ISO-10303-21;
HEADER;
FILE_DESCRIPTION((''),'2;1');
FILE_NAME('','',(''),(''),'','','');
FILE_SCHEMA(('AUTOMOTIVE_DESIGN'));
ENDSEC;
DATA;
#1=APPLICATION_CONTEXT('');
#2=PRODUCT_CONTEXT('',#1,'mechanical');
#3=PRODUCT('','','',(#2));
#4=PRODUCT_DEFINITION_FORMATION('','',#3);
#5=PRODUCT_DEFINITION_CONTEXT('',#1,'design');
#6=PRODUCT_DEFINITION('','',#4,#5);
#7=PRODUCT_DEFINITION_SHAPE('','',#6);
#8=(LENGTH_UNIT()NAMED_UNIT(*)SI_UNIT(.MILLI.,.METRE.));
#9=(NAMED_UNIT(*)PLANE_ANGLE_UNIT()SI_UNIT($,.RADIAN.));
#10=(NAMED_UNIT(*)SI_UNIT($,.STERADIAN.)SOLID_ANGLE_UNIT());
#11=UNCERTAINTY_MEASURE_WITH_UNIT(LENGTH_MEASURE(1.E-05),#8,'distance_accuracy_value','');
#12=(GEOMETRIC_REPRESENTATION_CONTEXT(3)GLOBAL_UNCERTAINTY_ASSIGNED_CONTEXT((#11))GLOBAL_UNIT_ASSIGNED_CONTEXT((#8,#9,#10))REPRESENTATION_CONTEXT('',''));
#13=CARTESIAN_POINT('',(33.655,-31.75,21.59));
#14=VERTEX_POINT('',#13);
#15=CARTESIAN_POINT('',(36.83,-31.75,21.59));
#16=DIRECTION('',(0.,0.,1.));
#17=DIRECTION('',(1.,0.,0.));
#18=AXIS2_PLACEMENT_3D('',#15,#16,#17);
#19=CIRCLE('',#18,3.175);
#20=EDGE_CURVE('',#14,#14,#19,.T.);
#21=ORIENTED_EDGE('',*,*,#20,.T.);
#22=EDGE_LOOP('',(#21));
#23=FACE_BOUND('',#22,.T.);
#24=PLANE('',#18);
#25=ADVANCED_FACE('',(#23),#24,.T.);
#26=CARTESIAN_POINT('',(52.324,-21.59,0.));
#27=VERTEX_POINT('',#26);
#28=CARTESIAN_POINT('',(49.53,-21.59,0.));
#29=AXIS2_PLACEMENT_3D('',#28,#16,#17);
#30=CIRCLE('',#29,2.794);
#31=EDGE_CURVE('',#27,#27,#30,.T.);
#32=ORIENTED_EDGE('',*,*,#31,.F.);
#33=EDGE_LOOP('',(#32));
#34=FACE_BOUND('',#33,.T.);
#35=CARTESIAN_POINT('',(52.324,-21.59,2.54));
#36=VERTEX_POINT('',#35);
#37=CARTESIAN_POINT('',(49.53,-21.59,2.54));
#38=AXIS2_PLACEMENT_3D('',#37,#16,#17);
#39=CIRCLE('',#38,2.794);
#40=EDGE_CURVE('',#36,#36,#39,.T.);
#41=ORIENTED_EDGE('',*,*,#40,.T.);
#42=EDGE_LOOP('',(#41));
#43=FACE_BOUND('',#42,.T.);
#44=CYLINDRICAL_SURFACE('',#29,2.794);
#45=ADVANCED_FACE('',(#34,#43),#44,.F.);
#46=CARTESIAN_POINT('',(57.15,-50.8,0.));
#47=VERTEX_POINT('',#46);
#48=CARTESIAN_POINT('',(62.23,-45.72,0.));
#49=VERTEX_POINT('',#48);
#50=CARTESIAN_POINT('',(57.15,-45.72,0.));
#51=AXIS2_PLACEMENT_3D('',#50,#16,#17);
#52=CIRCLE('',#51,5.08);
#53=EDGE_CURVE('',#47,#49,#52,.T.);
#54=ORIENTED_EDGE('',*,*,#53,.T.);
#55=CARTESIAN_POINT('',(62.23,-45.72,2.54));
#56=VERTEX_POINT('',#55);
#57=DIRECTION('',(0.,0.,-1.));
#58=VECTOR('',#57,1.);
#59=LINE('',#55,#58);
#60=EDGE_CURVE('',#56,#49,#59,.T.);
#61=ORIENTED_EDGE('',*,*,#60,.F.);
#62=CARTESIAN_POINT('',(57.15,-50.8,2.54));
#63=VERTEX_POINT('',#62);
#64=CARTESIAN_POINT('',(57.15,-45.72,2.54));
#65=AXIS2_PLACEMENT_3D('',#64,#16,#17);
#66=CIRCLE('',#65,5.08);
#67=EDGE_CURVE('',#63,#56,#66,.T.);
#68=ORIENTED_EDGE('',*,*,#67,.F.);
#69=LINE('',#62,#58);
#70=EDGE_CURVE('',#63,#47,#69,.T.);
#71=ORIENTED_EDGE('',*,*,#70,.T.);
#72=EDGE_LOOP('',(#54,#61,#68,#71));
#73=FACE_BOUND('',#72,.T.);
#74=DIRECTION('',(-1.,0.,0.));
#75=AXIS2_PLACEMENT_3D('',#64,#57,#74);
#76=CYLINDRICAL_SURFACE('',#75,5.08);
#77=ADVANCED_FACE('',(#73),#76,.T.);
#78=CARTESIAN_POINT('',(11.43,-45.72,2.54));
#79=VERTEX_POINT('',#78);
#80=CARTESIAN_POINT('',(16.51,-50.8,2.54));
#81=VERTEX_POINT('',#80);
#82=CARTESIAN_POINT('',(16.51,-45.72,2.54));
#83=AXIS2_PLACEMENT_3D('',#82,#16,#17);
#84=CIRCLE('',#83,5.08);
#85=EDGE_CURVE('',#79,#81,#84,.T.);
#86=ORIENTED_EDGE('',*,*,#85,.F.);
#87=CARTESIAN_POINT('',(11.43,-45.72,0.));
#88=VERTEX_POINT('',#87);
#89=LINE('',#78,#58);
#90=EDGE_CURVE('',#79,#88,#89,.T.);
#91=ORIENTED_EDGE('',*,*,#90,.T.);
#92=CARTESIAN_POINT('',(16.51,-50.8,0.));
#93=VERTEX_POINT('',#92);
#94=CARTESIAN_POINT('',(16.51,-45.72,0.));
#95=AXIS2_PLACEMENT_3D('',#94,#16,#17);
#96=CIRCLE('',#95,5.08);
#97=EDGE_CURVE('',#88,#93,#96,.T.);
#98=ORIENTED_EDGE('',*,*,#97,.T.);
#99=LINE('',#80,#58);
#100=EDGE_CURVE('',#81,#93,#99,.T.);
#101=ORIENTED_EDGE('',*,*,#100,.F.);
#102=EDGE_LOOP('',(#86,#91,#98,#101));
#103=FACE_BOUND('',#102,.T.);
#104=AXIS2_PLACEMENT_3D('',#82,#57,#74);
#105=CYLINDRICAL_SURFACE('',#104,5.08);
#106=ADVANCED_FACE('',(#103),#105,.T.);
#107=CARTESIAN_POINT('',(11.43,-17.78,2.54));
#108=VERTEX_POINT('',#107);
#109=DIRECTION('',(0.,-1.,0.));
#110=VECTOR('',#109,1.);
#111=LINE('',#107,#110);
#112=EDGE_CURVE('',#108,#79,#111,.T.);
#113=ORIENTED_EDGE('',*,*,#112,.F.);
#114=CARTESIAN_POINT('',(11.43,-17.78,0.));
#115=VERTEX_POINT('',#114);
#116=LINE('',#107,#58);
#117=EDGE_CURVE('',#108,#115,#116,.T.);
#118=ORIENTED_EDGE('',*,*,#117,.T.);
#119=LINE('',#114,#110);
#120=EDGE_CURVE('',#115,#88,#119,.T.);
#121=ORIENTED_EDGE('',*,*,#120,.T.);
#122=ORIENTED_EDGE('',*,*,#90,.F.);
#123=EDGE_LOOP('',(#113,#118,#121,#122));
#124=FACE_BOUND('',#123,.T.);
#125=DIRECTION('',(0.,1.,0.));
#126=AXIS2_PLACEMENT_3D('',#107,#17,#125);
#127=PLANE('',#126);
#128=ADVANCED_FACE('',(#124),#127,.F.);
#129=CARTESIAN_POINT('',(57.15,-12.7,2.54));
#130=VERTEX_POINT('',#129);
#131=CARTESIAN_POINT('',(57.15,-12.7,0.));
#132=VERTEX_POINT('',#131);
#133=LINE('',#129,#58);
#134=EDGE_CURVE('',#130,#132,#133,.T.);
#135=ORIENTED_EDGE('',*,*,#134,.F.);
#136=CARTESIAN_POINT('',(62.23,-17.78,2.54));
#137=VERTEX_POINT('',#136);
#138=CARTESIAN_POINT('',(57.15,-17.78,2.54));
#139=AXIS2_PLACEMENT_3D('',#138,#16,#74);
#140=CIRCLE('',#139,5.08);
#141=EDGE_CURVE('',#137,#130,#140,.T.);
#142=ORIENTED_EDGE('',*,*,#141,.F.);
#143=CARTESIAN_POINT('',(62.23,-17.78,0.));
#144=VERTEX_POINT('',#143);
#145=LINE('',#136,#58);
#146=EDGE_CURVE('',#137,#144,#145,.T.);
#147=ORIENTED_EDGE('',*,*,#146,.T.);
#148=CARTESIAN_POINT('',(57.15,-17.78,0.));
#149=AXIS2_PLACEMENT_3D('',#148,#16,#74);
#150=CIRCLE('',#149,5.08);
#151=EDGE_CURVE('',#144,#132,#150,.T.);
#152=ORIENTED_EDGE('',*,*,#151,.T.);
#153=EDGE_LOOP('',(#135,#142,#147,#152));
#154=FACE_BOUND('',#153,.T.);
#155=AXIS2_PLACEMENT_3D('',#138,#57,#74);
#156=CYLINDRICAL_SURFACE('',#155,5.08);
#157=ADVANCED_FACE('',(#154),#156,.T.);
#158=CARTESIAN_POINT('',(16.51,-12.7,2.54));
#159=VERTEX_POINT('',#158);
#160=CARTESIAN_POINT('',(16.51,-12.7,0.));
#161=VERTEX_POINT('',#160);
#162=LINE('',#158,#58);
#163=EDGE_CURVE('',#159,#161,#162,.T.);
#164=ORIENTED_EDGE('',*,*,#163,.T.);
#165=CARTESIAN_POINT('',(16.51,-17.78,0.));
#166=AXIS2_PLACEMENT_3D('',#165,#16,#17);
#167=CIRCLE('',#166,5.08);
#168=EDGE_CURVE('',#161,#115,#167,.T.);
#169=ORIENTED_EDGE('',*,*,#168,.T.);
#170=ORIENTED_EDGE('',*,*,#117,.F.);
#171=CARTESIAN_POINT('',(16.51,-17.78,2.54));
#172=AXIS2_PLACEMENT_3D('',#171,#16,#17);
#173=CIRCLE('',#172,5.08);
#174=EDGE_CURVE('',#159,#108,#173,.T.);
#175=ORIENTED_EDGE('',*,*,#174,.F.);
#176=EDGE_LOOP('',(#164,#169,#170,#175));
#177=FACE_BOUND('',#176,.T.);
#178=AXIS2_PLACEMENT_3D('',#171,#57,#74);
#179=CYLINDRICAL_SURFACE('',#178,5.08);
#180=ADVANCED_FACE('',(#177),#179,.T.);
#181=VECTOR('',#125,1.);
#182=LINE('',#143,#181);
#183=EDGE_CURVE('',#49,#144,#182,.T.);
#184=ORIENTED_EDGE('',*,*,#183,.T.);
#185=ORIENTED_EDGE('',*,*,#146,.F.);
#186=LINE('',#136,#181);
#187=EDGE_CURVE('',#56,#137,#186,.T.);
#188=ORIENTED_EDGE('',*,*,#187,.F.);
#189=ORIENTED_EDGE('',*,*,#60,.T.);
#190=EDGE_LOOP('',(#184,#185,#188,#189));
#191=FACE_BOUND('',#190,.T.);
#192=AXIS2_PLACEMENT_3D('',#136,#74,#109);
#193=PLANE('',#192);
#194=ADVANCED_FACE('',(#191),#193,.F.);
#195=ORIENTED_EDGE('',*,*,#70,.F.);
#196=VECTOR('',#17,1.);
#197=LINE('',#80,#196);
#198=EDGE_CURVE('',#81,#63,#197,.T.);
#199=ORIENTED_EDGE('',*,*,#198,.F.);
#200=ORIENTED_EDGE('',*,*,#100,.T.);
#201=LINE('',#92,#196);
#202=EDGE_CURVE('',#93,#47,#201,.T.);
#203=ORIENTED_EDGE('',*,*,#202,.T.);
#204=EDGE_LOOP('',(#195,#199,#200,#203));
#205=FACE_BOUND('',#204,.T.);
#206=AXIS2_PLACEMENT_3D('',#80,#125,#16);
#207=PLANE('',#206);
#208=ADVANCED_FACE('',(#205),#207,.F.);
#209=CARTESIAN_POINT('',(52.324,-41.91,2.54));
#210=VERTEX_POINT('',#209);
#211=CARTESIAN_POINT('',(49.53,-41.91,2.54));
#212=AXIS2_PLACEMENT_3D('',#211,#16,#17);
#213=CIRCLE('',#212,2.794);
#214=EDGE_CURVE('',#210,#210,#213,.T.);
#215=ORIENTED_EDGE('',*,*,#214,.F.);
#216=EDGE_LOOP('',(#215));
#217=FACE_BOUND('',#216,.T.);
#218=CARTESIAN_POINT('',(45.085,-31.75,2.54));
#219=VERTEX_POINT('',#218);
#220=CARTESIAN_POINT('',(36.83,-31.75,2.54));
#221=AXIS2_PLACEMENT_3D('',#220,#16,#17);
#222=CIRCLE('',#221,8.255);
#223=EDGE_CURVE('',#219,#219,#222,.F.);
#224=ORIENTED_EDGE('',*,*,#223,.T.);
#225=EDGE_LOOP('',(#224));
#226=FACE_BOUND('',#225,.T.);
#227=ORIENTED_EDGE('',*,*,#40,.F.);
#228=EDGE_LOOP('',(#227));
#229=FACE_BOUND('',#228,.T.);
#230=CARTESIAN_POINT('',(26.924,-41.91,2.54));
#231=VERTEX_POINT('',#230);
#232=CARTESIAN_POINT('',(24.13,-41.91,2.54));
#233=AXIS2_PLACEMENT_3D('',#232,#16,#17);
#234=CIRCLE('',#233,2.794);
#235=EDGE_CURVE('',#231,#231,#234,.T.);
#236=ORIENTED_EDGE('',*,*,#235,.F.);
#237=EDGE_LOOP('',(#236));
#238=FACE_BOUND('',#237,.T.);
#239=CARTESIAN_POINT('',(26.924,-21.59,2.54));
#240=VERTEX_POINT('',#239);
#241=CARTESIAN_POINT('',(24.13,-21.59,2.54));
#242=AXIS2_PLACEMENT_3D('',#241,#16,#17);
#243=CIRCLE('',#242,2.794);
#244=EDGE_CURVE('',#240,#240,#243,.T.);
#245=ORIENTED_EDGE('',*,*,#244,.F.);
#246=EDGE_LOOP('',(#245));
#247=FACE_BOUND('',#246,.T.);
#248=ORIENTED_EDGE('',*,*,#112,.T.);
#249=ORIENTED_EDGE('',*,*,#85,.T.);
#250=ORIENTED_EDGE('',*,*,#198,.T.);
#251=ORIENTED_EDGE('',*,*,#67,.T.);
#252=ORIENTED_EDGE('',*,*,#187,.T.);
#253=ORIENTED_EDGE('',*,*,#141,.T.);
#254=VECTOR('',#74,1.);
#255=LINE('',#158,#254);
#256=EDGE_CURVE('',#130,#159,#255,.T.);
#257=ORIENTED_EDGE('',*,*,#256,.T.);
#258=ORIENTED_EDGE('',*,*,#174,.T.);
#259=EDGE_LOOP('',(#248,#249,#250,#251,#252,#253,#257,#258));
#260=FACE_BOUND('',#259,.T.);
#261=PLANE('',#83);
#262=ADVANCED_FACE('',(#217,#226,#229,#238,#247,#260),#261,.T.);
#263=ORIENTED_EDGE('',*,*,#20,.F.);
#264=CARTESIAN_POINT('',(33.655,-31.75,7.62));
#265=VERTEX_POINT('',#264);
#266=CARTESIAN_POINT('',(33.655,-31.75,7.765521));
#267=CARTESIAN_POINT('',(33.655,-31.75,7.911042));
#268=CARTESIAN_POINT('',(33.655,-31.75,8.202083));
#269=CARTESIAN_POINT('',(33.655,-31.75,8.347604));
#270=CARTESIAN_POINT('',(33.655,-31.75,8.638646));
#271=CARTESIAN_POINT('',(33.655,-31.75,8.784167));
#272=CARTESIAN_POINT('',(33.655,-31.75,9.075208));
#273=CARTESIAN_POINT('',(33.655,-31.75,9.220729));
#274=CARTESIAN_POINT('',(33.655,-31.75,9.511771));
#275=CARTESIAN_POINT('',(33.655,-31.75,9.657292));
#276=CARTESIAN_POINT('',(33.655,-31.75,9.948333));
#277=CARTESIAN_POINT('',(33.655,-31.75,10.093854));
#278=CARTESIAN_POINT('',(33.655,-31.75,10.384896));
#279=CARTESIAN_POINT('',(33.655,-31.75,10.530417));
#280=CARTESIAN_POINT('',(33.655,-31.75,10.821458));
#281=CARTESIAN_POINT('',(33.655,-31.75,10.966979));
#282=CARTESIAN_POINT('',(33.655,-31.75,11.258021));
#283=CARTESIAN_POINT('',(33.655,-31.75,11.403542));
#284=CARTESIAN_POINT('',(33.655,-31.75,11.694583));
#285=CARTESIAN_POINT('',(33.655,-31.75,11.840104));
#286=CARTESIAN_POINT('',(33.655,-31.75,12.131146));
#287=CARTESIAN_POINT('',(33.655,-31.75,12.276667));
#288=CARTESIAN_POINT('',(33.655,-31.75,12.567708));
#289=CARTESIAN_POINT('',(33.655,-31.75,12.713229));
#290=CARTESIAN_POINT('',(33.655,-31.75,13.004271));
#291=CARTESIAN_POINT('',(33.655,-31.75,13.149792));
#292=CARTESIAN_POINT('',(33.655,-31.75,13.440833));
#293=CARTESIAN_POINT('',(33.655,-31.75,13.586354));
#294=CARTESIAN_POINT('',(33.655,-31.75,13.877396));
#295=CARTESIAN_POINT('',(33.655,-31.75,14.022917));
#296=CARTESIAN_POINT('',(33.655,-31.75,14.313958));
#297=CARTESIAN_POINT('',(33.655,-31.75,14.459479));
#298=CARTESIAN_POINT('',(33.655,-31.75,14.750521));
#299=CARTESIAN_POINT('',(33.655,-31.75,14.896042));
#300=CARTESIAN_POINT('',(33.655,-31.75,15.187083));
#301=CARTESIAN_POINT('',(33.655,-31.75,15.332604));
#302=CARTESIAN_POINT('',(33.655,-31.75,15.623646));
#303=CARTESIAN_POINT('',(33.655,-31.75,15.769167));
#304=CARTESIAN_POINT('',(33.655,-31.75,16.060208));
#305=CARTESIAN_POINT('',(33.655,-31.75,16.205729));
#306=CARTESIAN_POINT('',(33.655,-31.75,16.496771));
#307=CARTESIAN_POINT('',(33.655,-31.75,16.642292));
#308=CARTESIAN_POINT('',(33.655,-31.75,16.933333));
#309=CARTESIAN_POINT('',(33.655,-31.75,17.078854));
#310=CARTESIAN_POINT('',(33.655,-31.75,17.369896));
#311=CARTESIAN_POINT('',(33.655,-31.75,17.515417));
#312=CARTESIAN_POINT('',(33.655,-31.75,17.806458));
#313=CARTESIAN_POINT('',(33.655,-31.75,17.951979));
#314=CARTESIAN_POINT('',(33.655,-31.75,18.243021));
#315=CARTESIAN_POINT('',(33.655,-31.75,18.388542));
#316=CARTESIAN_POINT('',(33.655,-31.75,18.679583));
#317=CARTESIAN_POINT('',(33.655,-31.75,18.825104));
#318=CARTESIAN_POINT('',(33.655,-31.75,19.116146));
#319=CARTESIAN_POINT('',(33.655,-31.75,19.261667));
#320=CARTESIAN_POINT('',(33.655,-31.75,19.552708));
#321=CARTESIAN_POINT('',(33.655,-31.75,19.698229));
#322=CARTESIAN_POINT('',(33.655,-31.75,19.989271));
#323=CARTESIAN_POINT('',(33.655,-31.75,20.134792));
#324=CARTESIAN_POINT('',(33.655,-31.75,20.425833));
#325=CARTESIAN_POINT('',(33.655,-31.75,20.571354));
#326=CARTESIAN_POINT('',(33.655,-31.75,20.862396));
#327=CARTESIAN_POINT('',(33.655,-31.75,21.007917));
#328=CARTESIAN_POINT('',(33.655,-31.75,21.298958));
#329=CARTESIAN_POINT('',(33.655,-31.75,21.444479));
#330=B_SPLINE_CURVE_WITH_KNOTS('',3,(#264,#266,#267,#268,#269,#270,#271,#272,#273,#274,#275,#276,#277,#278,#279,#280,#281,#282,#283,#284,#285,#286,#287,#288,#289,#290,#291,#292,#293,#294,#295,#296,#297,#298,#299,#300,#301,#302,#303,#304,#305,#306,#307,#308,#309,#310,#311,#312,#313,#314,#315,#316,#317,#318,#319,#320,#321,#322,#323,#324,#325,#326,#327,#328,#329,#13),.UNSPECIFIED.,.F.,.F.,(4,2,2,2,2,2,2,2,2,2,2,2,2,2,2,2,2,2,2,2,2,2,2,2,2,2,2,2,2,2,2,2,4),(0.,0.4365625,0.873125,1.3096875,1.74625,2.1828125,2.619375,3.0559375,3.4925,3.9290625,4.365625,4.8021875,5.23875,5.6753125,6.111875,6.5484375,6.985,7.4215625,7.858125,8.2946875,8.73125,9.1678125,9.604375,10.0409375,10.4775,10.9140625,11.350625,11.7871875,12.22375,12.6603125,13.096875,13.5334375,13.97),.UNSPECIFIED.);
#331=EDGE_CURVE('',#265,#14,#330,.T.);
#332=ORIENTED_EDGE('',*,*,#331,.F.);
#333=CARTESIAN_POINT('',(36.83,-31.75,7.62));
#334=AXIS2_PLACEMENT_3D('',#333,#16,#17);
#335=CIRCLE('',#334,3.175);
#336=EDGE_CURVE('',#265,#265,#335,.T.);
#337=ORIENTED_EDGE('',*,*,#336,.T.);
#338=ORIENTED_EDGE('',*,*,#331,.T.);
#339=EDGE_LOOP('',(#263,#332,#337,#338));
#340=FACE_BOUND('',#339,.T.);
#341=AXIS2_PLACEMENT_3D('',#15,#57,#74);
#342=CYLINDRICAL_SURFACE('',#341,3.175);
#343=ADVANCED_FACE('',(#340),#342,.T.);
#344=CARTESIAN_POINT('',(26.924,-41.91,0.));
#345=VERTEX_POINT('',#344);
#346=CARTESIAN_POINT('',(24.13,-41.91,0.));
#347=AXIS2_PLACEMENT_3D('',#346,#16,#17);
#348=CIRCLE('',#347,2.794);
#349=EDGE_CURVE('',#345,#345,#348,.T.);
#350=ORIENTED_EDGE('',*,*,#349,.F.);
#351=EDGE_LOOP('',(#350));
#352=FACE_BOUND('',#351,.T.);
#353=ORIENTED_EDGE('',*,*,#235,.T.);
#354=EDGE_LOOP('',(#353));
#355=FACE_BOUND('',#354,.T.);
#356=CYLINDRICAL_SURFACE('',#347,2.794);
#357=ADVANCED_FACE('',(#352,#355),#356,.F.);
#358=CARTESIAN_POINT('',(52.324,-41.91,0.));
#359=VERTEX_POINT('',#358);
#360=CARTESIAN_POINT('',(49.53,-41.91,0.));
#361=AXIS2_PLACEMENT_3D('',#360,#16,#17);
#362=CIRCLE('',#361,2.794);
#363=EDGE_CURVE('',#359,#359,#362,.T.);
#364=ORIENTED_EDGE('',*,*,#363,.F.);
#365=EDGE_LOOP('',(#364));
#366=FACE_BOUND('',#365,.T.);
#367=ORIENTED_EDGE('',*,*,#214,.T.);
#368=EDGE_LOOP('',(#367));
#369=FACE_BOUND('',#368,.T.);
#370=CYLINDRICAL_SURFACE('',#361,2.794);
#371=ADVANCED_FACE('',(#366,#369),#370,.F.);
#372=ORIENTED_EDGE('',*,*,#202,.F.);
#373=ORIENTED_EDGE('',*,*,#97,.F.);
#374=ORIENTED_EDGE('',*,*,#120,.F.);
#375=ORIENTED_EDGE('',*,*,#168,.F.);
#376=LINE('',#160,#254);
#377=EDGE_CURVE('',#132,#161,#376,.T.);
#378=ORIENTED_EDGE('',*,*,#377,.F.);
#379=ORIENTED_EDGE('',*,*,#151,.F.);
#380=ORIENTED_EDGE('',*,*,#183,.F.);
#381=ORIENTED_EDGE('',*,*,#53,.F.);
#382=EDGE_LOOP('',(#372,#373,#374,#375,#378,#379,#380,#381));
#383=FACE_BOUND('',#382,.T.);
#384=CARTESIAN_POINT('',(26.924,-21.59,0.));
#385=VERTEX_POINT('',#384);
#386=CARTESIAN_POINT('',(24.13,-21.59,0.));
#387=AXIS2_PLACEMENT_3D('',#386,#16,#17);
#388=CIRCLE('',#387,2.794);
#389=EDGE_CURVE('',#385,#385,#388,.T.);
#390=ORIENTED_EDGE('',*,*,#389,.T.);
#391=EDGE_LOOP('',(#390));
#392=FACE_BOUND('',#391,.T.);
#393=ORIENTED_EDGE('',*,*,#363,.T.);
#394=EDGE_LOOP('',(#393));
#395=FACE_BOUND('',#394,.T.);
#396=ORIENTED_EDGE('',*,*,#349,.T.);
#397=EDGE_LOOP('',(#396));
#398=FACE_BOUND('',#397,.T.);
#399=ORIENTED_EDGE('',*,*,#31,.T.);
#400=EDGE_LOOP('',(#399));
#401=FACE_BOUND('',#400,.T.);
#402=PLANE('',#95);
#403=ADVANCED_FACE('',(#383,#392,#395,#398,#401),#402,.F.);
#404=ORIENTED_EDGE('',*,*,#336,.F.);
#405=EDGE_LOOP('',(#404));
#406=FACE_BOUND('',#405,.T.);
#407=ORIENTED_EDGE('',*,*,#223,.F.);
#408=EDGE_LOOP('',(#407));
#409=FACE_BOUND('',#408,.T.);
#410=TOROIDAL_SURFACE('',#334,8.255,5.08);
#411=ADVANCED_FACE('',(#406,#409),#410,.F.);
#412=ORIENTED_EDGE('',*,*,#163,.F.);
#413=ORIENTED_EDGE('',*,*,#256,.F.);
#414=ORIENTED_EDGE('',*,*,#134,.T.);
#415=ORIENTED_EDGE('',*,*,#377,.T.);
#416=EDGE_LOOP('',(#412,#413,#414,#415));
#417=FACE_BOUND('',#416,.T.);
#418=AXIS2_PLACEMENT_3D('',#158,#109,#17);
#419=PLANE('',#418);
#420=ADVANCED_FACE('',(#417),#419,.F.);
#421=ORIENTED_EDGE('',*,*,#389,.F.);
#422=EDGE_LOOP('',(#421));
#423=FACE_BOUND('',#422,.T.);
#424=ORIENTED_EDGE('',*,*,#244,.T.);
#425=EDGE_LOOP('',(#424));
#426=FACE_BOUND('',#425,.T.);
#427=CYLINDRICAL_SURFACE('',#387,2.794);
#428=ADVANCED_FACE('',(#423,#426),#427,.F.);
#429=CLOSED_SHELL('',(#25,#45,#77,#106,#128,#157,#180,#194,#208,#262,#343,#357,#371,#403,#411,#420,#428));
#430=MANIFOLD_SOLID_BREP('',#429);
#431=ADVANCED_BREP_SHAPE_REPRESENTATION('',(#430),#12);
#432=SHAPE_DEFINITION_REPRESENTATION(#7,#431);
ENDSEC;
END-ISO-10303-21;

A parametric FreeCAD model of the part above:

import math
import FreeCAD as App
import Part
import Sketcher

V = App.Vector
Q = App.Units.Quantity


def edges_at(feature, points):
    """Names of the edges that pass closest to the given points."""
    edges = feature.Shape.Edges
    near = lambda p: min(range(len(edges)), key=lambda i: edges[i].distToShape(Part.Vertex(*p))[0])
    return sorted({f"Edge{near(p) + 1}" for p in points})

doc = App.newDocument("Part")
body = doc.addObject("PartDesign::Body", "Body")

# Sketch on XY plane
sketch1 = body.newObject("Sketcher::SketchObject", "Sketch")
sketch1.AttachmentSupport = (doc.getObject("XY_Plane"), [""])
sketch1.MapMode = "FlatFace"
sketch1.addGeometry([
    Part.LineSegment(V(57, -13, 0), V(17, -13, 0)),  # 0
    Part.ArcOfCircle(Part.Circle(V(17, -18, 0), V(0, 0, 1), 5), math.radians(90), math.radians(180)),  # 1
    Part.LineSegment(V(11, -18, 0), V(11, -46, 0)),  # 2
    Part.ArcOfCircle(Part.Circle(V(17, -46, 0), V(0, 0, 1), 5), math.radians(-180), math.radians(-90)),  # 3
    Part.LineSegment(V(17, -51, 0), V(57, -51, 0)),  # 4
    Part.ArcOfCircle(Part.Circle(V(57, -46, 0), V(0, 0, 1), 5), math.radians(-90), math.radians(0)),  # 5
    Part.LineSegment(V(62, -46, 0), V(62, -18, 0)),  # 6
    Part.ArcOfCircle(Part.Circle(V(57, -18, 0), V(0, 0, 1), 5), math.radians(0), math.radians(90)),  # 7
], False)
sketch1.addConstraint([
    Sketcher.Constraint("Tangent", 0, 2, 1, 1),
    Sketcher.Constraint("Tangent", 1, 2, 2, 1),
    Sketcher.Constraint("Tangent", 2, 2, 3, 1),
    Sketcher.Constraint("Tangent", 3, 2, 4, 1),
    Sketcher.Constraint("Tangent", 4, 2, 5, 1),
    Sketcher.Constraint("Tangent", 5, 2, 6, 1),
    Sketcher.Constraint("Tangent", 6, 2, 7, 1),
    Sketcher.Constraint("Tangent", 7, 2, 0, 1),
    Sketcher.Constraint("Horizontal", 0),
    Sketcher.Constraint("Vertical", 2),
    Sketcher.Constraint("Horizontal", 4),
    Sketcher.Constraint("Vertical", 6),
    Sketcher.Constraint("Equal", 1, 3),
    Sketcher.Constraint("Equal", 3, 5),
    Sketcher.Constraint("Equal", 5, 7),
    Sketcher.Constraint("Radius", 1, Q("0.2 in")),
    Sketcher.Constraint("DistanceX", 0, 2, 0, 1, Q("1.6 in")),
    Sketcher.Constraint("DistanceY", 2, 2, 2, 1, Q("1.1 in")),
    Sketcher.Constraint("DistanceY", 3, 2, -1, 1, Q("2 in")),
    Sketcher.Constraint("DistanceX", -1, 1, 1, 3, Q("0.65 in")),
])
pad1 = body.newObject("PartDesign::Pad", "Pad")
pad1.Profile = sketch1
pad1.Length = Q("0.1 in")

# Sketch on XY plane
sketch2 = body.newObject("Sketcher::SketchObject", "Sketch001")
sketch2.AttachmentSupport = (doc.getObject("XY_Plane"), [""])
sketch2.MapMode = "FlatFace"
sketch2.AttachmentOffset = App.Placement(V(0, 0, 0.1 * 25.4), App.Rotation())
sketch2.addGeometry([
    Part.Circle(V(24.1, -21.6, 0), V(0, 0, 1), 2.8),
    Part.Circle(V(49.5, -21.6, 0), V(0, 0, 1), 2.8),
    Part.Circle(V(24.1, -41.9, 0), V(0, 0, 1), 2.8),
    Part.Circle(V(49.5, -41.9, 0), V(0, 0, 1), 2.8),
], False)
sketch2.addConstraint([
    Sketcher.Constraint("Equal", 0, 1),
    Sketcher.Constraint("Equal", 1, 2),
    Sketcher.Constraint("Equal", 2, 3),
    Sketcher.Constraint("Horizontal", 0, 3, 1, 3),
    Sketcher.Constraint("Horizontal", 2, 3, 3, 3),
    Sketcher.Constraint("Vertical", 0, 3, 2, 3),
    Sketcher.Constraint("Vertical", 1, 3, 3, 3),
    Sketcher.Constraint("Diameter", 0, Q("0.22 in")),
    Sketcher.Constraint("DistanceX", 0, 3, 1, 3, Q("1 in")),
    Sketcher.Constraint("DistanceY", 2, 3, 0, 3, Q("0.8 in")),
    Sketcher.Constraint("DistanceX", -1, 1, 0, 3, Q("0.95 in")),
    Sketcher.Constraint("DistanceY", 0, 3, -1, 1, Q("0.85 in")),
])
pocket1 = body.newObject("PartDesign::Pocket", "Pocket")
pocket1.Profile = sketch2
pocket1.Type = "ThroughAll"

# Sketch on XY plane
sketch3 = body.newObject("Sketcher::SketchObject", "Sketch002")
sketch3.AttachmentSupport = (doc.getObject("XY_Plane"), [""])
sketch3.MapMode = "FlatFace"
sketch3.AttachmentOffset = App.Placement(V(0, 0, 0.1 * 25.4), App.Rotation())
sketch3.addGeometry(Part.Circle(V(36.8, -31.8, 0), V(0, 0, 1), 3.2), False)
sketch3.addConstraint([
    Sketcher.Constraint("Diameter", 0, Q("0.25 in")),
    Sketcher.Constraint("DistanceX", -1, 1, 0, 3, Q("1.45 in")),
    Sketcher.Constraint("DistanceY", 0, 3, -1, 1, Q("1.25 in")),
])
pad2 = body.newObject("PartDesign::Pad", "Pad001")
pad2.Profile = sketch3
pad2.Length = Q("0.75 in")
doc.recompute()

fillet = body.newObject("PartDesign::Fillet", "Fillet")
fillet.Base = (pad2, edges_at(pad2, [(40.005, -31.75, 2.54)]))
fillet.Radius = Q("0.2 in")

doc.recompute()
